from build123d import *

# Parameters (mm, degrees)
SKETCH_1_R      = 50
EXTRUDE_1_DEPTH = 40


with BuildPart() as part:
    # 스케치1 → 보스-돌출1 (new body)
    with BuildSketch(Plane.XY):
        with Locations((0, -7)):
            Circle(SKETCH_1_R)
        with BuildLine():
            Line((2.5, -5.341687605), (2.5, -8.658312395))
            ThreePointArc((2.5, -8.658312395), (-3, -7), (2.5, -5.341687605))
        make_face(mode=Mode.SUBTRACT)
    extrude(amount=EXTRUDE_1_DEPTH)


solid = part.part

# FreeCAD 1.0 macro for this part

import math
import FreeCAD as App
import Part
import Sketcher
from FreeCAD import Vector
Q = App.Units.Quantity

doc = App.newDocument("Part")
body = doc.addObject("PartDesign::Body", "Body")

# Sketch on XY plane
sketch1 = body.newObject("Sketcher::SketchObject", "Sketch")
sketch1.AttachmentSupport = (doc.getObject("XY_Plane"), [""])
sketch1.MapMode = "FlatFace"
sketch1.addGeometry(Part.Circle(Vector(0, -7, 0), Vector(0, 0, 1), 50), False)
sketch1.addGeometry(Part.ArcOfCircle(Part.Circle(Vector(0, -7, 0), Vector(0, 0, 1), 3), math.radians(34), math.radians(326)), False)
sketch1.addGeometry(Part.LineSegment(Vector(2.5, -5.3, 0), Vector(2.5, -8.7, 0)), False)
sketch1.addConstraint(Sketcher.Constraint("Coincident", 1, 1, 2, 1))
sketch1.addConstraint(Sketcher.Constraint("Coincident", 2, 2, 1, 2))
sketch1.addConstraint(Sketcher.Constraint("Vertical", 2))
sketch1.addConstraint(Sketcher.Constraint("Coincident", 1, 3, 0, 3))
sketch1.addConstraint(Sketcher.Constraint("PointOnObject", 0, 3, -2))
sketch1.addConstraint(Sketcher.Constraint("Diameter", 0, Q("100 mm")))
sketch1.addConstraint(Sketcher.Constraint("Radius", 1, Q("3 mm")))
sketch1.addConstraint(Sketcher.Constraint("DistanceY", 0, 3, -1, 1, Q("7 mm")))
sketch1.addConstraint(Sketcher.Constraint("DistanceX", -1, 1, 1, 1, Q("2.5 mm")))
pad1 = body.newObject("PartDesign::Pad", "Pad")
pad1.Profile = sketch1
pad1.Length = 40

doc.recompute()
